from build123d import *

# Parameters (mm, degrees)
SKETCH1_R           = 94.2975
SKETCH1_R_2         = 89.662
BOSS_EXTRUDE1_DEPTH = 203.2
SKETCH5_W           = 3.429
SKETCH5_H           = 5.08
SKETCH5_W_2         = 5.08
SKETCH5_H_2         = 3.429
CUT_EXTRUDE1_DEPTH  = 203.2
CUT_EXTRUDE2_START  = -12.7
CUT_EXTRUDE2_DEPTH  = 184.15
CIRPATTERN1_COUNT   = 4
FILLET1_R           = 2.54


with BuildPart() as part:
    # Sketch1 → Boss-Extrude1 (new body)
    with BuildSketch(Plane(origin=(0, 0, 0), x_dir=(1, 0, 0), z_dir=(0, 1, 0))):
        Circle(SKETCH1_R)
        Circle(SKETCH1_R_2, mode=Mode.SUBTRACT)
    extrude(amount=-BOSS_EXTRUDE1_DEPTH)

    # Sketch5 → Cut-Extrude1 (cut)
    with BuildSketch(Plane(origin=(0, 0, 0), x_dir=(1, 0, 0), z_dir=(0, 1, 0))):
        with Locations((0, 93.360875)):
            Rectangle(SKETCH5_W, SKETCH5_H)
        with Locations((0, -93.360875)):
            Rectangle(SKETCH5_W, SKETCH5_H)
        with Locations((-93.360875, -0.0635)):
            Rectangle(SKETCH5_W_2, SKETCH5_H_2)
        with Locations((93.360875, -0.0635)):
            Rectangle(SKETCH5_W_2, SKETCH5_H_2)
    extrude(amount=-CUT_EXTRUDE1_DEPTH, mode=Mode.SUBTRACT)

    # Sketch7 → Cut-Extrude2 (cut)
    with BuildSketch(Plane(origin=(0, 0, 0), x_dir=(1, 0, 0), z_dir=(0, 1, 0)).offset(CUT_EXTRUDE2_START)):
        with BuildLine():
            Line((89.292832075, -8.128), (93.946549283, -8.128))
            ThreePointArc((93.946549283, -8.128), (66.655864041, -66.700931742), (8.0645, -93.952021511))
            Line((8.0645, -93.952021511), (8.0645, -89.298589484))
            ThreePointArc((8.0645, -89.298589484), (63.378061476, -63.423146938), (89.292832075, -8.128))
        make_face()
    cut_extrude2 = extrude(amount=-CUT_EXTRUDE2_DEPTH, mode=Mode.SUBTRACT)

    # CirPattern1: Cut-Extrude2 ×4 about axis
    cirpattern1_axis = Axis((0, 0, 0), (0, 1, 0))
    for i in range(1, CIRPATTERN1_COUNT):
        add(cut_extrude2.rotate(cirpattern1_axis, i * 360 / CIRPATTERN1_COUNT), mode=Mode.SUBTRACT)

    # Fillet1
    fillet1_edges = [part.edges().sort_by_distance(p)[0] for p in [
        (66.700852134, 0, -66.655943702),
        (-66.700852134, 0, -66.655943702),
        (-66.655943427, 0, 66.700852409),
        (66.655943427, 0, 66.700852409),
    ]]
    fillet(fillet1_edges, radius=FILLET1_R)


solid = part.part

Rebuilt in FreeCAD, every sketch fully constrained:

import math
import FreeCAD as App
import Part
import Sketcher
Q = App.Units.Quantity


def edges_at(feature, points):
    """Names of the edges that pass closest to the given points."""
    edges = feature.Shape.Edges
    near = lambda p: min(range(len(edges)), key=lambda i: edges[i].distToShape(Part.Vertex(*p))[0])
    return sorted({f"Edge{near(p) + 1}" for p in points})

doc = App.newDocument("Part")
body = doc.addObject("PartDesign::Body", "Body")

sketch1 = doc.addObject("Sketcher::SketchObject", "Sketch")
body.addObject(sketch1)
sketch1.AttachmentSupport = (doc.XZ_Plane, [""])
sketch1.MapMode = "FlatFace"
sketch1.addGeometry([
    Part.Circle(App.Vector(0, 0, 0), App.Vector(0, 0, 1), 94),
    Part.Circle(App.Vector(0, 0, 0), App.Vector(0, 0, 1), 90),
], False)
sketch1.addConstraint([
    Sketcher.Constraint("Coincident", 0, 3, -1, 1),
    Sketcher.Constraint("Coincident", 1, 3, -1, 1),
    Sketcher.Constraint("Diameter", 1, Q("7.06 in")),
    Sketcher.Constraint("Diameter", 0, Q("7.425 in")),
])
pad1 = doc.addObject("PartDesign::Pad", "Pad")
body.addObject(pad1)
pad1.Profile = sketch1
pad1.Length = Q("8 in")

sketch2 = doc.addObject("Sketcher::SketchObject", "Sketch001")
body.addObject(sketch2)
sketch2.AttachmentSupport = (doc.XZ_Plane, [""])
sketch2.MapMode = "FlatFace"
sketch2.addGeometry([
    Part.LineSegment(App.Vector(-1.7, -95.9, 0), App.Vector(-1.7, -90.8, 0)),
    Part.LineSegment(App.Vector(-1.7, -90.8, 0), App.Vector(1.7, -90.8, 0)),
    Part.LineSegment(App.Vector(1.7, -90.8, 0), App.Vector(1.7, -95.9, 0)),
    Part.LineSegment(App.Vector(1.7, -95.9, 0), App.Vector(-1.7, -95.9, 0)),
    Part.LineSegment(App.Vector(-1.7, 90.8, 0), App.Vector(-1.7, 95.9, 0)),
    Part.LineSegment(App.Vector(-1.7, 95.9, 0), App.Vector(1.7, 95.9, 0)),
    Part.LineSegment(App.Vector(1.7, 95.9, 0), App.Vector(1.7, 90.8, 0)),
    Part.LineSegment(App.Vector(1.7, 90.8, 0), App.Vector(-1.7, 90.8, 0)),
    Part.LineSegment(App.Vector(-95.9, -1.7, 0), App.Vector(-95.9, 1.8, 0)),
    Part.LineSegment(App.Vector(-95.9, 1.8, 0), App.Vector(-90.8, 1.8, 0)),
    Part.LineSegment(App.Vector(-90.8, 1.8, 0), App.Vector(-90.8, -1.7, 0)),
    Part.LineSegment(App.Vector(-90.8, -1.7, 0), App.Vector(-95.9, -1.7, 0)),
    Part.LineSegment(App.Vector(90.8, -1.7, 0), App.Vector(90.8, 1.8, 0)),
    Part.LineSegment(App.Vector(90.8, 1.8, 0), App.Vector(95.9, 1.8, 0)),
    Part.LineSegment(App.Vector(95.9, 1.8, 0), App.Vector(95.9, -1.7, 0)),
    Part.LineSegment(App.Vector(95.9, -1.7, 0), App.Vector(90.8, -1.7, 0)),
], False)
sketch2.addConstraint([
    Sketcher.Constraint("Coincident", 0, 2, 1, 1),
    Sketcher.Constraint("Coincident", 1, 2, 2, 1),
    Sketcher.Constraint("Coincident", 2, 2, 3, 1),
    Sketcher.Constraint("Coincident", 3, 2, 0, 1),
    Sketcher.Constraint("Coincident", 4, 2, 5, 1),
    Sketcher.Constraint("Coincident", 5, 2, 6, 1),
    Sketcher.Constraint("Coincident", 6, 2, 7, 1),
    Sketcher.Constraint("Coincident", 7, 2, 4, 1),
    Sketcher.Constraint("Coincident", 8, 2, 9, 1),
    Sketcher.Constraint("Coincident", 9, 2, 10, 1),
    Sketcher.Constraint("Coincident", 10, 2, 11, 1),
    Sketcher.Constraint("Coincident", 11, 2, 8, 1),
    Sketcher.Constraint("Coincident", 12, 2, 13, 1),
    Sketcher.Constraint("Coincident", 13, 2, 14, 1),
    Sketcher.Constraint("Coincident", 14, 2, 15, 1),
    Sketcher.Constraint("Coincident", 15, 2, 12, 1),
    Sketcher.Constraint("Vertical", 0),
    Sketcher.Constraint("Horizontal", 1),
    Sketcher.Constraint("Vertical", 2),
    Sketcher.Constraint("Horizontal", 3),
    Sketcher.Constraint("Vertical", 4),
    Sketcher.Constraint("Horizontal", 5),
    Sketcher.Constraint("Vertical", 6),
    Sketcher.Constraint("Horizontal", 7),
    Sketcher.Constraint("Vertical", 8),
    Sketcher.Constraint("Horizontal", 9),
    Sketcher.Constraint("Vertical", 10),
    Sketcher.Constraint("Horizontal", 11),
    Sketcher.Constraint("Vertical", 12),
    Sketcher.Constraint("Horizontal", 13),
    Sketcher.Constraint("Vertical", 14),
    Sketcher.Constraint("Horizontal", 15),
    Sketcher.Constraint("Symmetric", 2, 2, 4, 2, -1, 1),
    Sketcher.Constraint("Symmetric", 0, 2, 6, 2, -1, 1),
    Sketcher.Constraint("Symmetric", 9, 2, 12, 2, -2),
    Sketcher.Constraint("Symmetric", 11, 2, 14, 2, -2),
    Sketcher.Constraint("Vertical", 3, 2, 4, 2),
    Sketcher.Constraint("Equal", 15, 0),
    Sketcher.Constraint("Equal", 7, 8),
    Sketcher.Constraint("DistanceX", 9, 1, 9, 2, Q("0.2 in")),
    Sketcher.Constraint("DistanceX", 1, 1, 1, 2, Q("0.135 in")),
    Sketcher.Constraint("DistanceY", -1, 1, 8, 2, Q("0.07 in")),
    Sketcher.Constraint("DistanceY", 10, 2, 7, 2, Q("3.640625 in")),
    Sketcher.Constraint("DistanceX", 8, 2, -1, 1, Q("95.900875 mm")),
])
pocket1 = doc.addObject("PartDesign::Pocket", "Pocket")
body.addObject(pocket1)
pocket1.Profile = sketch2
pocket1.Length = Q("8 in")
pocket1.Reversed = True

sketch3 = doc.addObject("Sketcher::SketchObject", "Sketch002")
body.addObject(sketch3)
sketch3.AttachmentSupport = (doc.XZ_Plane, [""])
sketch3.MapMode = "FlatFace"
sketch3.AttachmentOffset = App.Placement(App.Vector(0, 0, 0.5 * 25.4), App.Rotation())
sketch3.addGeometry([
    Part.LineSegment(App.Vector(93.9, 8.1, 0), App.Vector(89.3, 8.1, 0)),
    Part.ArcOfCircle(Part.Circle(App.Vector(0, 0, 0), App.Vector(0, 0, 1), 89.7), math.radians(5), math.radians(85)),
    Part.LineSegment(App.Vector(8.1, 89.3, 0), App.Vector(8.1, 94, 0)),
    Part.ArcOfCircle(Part.Circle(App.Vector(0, 0, 0), App.Vector(0, 0, 1), 94.3), math.radians(5), math.radians(85)),
], False)
sketch3.addConstraint([
    Sketcher.Constraint("Coincident", 0, 2, 1, 1),
    Sketcher.Constraint("Coincident", 1, 2, 2, 1),
    Sketcher.Constraint("Coincident", 2, 2, 3, 2),
    Sketcher.Constraint("Coincident", 3, 1, 0, 1),
    Sketcher.Constraint("Horizontal", 0),
    Sketcher.Constraint("Vertical", 2),
    Sketcher.Constraint("Coincident", 1, 3, -1, 1),
    Sketcher.Constraint("Coincident", 3, 3, -1, 1),
    Sketcher.Constraint("Radius", 1, Q("3.53 in")),
    Sketcher.Constraint("Radius", 3, Q("3.7125 in")),
    Sketcher.Constraint("DistanceY", -1, 1, 0, 2, Q("0.32 in")),
    Sketcher.Constraint("DistanceX", -1, 1, 1, 2, Q("0.3175 in")),
])
pocket2 = doc.addObject("PartDesign::Pocket", "Pocket001")
body.addObject(pocket2)
pocket2.Profile = sketch3
pocket2.Length = Q("7.25 in")
pocket2.Reversed = True
doc.recompute()

polarpattern = doc.addObject("PartDesign::PolarPattern", "PolarPattern")
body.addObject(polarpattern)
polarpattern.Originals = [pocket2]
polarpattern.Axis = (doc.Y_Axis, [""])
polarpattern.Angle = 360
polarpattern.Occurrences = 4
body.Tip = polarpattern
doc.recompute()

fillet = doc.addObject("PartDesign::Fillet", "Fillet")
body.addObject(fillet)
fillet.Base = (polarpattern, edges_at(polarpattern, [
    (66.701, 0, -66.656),
    (-66.701, 0, -66.656),
    (-66.656, 0, 66.701),
    (66.656, 0, 66.701),
]))
fillet.Radius = Q("0.1 in")

doc.recompute()
